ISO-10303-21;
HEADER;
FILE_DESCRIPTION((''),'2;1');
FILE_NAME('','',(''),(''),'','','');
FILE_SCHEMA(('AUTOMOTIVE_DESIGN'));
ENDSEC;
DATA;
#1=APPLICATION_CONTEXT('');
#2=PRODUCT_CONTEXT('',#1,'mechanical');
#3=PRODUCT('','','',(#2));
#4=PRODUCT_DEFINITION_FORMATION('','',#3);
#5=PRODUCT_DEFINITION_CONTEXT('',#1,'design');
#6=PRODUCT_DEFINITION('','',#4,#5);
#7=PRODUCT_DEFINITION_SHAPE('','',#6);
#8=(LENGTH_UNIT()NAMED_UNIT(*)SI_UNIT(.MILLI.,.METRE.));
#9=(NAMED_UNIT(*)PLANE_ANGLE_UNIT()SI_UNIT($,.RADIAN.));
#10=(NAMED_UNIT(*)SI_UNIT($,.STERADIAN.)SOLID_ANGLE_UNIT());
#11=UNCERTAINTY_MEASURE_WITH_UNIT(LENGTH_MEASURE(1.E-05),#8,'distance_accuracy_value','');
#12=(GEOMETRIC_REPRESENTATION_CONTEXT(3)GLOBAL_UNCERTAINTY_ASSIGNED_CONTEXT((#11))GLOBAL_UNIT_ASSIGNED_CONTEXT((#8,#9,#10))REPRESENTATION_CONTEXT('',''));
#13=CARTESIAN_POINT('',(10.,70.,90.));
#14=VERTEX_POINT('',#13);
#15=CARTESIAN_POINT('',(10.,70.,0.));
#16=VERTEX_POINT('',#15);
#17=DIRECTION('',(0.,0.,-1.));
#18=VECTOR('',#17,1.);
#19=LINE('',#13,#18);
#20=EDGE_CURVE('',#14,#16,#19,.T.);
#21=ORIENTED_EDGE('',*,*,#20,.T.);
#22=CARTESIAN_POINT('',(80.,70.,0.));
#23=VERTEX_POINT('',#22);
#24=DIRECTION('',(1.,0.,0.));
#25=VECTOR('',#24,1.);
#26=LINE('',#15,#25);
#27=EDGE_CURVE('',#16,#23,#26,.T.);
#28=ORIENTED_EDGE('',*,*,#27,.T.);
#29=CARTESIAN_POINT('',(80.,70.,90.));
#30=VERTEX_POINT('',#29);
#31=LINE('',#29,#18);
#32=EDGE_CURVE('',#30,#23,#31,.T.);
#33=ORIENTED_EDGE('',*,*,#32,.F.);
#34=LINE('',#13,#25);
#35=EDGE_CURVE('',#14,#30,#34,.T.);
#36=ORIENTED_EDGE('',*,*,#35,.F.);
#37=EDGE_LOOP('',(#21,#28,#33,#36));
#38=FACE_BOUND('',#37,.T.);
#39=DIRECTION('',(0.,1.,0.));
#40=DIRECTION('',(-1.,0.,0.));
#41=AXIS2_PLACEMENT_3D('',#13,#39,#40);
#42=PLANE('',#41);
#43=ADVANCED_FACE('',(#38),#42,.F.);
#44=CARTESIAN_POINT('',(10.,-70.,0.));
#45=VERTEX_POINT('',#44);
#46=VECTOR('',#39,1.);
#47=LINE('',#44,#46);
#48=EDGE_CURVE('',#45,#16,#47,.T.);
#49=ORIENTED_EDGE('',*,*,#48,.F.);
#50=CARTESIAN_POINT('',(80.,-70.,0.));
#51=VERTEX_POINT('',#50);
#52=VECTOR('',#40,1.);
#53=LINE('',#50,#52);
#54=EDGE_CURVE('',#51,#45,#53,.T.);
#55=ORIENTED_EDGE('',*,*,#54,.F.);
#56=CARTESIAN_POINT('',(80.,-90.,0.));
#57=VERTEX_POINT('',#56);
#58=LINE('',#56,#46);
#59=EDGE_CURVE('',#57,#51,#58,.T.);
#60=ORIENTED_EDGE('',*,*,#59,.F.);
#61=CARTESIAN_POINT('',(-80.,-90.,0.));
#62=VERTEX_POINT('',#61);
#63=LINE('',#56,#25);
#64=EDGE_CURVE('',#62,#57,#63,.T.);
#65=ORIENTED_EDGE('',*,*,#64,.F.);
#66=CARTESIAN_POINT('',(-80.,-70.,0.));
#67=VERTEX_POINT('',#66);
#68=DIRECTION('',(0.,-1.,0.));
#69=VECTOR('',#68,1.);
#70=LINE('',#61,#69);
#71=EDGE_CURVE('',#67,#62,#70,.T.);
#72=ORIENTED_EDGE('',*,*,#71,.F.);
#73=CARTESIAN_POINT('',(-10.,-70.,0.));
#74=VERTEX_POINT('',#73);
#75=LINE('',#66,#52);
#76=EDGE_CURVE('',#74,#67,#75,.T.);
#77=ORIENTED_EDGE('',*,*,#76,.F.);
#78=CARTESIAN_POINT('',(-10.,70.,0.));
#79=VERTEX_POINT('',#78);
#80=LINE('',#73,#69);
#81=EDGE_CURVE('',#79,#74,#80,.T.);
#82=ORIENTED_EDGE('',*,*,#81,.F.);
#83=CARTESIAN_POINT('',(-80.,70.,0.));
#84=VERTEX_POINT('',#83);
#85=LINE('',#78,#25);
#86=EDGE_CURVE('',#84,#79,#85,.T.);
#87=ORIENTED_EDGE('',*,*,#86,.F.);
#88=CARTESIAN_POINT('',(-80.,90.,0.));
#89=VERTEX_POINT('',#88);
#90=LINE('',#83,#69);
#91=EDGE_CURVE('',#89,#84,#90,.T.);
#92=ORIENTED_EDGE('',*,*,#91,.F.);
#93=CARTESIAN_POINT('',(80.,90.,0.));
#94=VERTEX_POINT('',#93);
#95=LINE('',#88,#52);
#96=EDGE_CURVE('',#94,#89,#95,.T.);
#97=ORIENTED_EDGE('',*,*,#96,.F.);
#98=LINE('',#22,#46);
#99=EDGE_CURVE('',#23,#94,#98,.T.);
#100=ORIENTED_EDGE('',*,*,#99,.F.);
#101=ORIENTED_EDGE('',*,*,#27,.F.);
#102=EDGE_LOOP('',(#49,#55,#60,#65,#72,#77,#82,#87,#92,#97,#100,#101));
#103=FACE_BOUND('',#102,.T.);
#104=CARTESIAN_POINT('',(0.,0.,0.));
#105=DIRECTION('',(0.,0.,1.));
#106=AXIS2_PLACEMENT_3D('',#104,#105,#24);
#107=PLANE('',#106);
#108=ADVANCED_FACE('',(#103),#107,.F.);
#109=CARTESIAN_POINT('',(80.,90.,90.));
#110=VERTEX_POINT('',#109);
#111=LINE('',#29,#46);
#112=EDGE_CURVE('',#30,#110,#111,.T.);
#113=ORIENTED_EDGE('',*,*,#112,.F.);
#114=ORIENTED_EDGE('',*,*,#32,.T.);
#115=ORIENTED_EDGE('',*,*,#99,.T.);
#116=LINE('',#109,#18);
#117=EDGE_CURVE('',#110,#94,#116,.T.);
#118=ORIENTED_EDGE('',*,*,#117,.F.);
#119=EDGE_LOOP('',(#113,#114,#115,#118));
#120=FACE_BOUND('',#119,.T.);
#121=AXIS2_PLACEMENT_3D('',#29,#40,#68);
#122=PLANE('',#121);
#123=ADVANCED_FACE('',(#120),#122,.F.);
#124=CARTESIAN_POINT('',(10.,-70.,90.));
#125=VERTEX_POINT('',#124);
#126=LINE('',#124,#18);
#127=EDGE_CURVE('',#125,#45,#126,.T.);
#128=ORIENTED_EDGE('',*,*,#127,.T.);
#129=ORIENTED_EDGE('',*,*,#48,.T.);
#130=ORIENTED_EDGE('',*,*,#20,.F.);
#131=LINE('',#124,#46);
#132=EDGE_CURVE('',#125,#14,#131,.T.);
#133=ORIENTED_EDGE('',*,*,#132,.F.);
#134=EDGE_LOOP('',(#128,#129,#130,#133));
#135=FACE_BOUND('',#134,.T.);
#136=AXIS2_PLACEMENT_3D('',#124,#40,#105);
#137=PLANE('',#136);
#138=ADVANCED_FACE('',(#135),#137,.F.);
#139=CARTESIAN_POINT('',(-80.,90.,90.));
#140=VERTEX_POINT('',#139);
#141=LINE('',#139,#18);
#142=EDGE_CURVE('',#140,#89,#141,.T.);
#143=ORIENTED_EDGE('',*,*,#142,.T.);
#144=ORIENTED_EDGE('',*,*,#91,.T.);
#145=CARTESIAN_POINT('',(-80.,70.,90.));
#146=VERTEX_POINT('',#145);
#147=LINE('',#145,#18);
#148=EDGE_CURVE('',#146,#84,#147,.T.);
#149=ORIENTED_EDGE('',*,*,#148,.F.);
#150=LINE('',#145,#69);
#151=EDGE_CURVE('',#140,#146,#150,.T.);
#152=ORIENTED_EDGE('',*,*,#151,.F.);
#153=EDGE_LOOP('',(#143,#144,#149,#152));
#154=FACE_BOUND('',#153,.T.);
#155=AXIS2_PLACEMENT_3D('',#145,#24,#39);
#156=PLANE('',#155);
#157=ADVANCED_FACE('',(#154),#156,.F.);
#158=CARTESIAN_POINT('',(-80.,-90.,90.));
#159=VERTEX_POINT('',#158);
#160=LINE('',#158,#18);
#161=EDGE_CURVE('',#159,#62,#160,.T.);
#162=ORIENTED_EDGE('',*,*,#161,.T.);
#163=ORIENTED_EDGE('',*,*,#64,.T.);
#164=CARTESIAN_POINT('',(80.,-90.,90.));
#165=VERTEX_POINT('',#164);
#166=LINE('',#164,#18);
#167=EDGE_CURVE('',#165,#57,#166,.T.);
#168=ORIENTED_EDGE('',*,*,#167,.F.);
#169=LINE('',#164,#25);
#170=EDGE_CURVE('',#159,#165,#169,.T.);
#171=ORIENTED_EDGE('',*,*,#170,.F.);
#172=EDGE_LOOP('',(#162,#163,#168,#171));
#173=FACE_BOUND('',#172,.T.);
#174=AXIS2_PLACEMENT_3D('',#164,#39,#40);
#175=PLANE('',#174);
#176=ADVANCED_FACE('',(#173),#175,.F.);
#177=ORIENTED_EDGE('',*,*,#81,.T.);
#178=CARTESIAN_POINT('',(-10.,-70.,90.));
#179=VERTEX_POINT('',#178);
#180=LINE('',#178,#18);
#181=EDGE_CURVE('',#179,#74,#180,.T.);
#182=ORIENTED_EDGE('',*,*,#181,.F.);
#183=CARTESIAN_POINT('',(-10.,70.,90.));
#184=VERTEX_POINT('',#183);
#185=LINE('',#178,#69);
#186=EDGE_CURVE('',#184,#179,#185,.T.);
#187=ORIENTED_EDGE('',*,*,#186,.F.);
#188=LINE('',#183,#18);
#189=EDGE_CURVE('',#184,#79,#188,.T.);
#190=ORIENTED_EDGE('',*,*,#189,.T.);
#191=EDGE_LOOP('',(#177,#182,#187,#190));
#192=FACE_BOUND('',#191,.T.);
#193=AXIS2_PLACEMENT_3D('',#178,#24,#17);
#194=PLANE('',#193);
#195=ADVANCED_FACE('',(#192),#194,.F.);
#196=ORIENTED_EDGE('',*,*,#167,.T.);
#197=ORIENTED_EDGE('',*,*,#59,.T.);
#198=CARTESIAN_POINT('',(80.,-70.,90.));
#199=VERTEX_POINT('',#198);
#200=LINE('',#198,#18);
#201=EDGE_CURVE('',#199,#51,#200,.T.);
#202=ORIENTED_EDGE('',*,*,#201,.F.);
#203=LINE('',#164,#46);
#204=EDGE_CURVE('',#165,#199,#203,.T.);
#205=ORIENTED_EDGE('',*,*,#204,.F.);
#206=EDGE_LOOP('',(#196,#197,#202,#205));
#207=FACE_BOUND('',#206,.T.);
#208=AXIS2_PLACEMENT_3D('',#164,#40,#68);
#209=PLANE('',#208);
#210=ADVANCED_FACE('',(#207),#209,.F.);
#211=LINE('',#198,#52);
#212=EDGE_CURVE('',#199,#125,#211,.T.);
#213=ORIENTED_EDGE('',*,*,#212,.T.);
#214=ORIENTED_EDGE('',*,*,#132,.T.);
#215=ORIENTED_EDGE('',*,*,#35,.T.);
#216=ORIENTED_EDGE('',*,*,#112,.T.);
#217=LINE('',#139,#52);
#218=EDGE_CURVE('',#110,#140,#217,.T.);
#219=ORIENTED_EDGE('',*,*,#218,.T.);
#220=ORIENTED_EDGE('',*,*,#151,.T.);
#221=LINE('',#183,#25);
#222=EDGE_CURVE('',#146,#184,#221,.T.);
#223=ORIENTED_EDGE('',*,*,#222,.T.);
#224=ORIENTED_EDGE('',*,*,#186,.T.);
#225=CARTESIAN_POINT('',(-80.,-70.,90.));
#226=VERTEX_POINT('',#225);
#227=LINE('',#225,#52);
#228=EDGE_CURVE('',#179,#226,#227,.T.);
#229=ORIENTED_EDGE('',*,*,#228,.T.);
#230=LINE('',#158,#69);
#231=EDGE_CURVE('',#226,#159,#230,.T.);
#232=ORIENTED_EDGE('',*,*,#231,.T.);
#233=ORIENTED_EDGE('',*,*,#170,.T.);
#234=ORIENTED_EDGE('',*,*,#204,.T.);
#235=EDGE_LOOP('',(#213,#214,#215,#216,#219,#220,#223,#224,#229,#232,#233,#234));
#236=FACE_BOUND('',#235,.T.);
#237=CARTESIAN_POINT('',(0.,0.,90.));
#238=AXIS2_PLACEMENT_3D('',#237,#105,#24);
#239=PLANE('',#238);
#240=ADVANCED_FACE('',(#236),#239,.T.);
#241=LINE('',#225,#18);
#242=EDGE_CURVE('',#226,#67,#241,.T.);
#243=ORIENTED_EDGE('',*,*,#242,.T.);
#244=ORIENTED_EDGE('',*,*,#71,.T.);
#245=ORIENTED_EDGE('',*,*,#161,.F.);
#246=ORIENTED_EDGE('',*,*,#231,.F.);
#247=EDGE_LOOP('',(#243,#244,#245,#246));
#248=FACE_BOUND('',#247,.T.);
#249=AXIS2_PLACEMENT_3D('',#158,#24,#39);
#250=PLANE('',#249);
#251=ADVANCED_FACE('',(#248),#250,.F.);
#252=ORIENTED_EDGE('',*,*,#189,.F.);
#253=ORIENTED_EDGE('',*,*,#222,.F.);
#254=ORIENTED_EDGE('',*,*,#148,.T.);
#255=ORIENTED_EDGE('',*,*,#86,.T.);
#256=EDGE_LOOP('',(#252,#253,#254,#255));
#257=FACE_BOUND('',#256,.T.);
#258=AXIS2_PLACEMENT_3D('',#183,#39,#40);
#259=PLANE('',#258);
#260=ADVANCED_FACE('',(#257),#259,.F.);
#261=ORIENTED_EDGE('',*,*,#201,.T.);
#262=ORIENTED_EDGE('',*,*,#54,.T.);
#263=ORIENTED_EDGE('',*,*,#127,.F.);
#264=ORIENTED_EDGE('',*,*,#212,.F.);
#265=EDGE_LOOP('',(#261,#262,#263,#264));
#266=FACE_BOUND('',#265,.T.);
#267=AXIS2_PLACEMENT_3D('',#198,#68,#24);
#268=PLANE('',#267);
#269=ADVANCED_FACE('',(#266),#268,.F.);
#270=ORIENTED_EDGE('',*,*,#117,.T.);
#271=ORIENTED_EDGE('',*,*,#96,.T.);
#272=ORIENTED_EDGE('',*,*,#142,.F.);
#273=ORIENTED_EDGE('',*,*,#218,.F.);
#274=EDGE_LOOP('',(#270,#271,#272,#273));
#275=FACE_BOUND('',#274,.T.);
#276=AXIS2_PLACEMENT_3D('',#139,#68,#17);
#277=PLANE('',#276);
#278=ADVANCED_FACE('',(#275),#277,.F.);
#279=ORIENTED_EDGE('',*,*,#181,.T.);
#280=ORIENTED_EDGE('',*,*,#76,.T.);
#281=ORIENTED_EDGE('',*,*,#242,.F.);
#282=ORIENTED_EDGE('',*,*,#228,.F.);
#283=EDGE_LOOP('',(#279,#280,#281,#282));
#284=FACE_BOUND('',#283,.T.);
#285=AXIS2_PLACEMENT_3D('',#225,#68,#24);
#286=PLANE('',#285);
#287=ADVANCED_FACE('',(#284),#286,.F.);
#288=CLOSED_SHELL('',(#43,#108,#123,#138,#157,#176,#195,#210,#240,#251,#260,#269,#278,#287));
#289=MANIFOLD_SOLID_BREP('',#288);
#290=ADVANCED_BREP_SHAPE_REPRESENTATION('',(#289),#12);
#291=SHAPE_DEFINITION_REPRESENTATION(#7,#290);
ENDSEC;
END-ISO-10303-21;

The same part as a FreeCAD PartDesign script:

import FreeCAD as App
import Part
import Sketcher

V = App.Vector


def add_polygon(sketch, points):
    """Adds a closed chain of lines whose ends are joined by coincident constraints."""
    first, n = sketch.GeometryCount, len(points)
    for a, b in zip(points, points[1:] + points[:1]):
        sketch.addGeometry(Part.LineSegment(App.Vector(*a, 0), App.Vector(*b, 0)), False)
    for i in range(n):
        sketch.addConstraint(Sketcher.Constraint("Coincident", first + i, 2, first + (i + 1) % n, 1))

doc = App.newDocument("Part")
body = doc.addObject("PartDesign::Body", "Body")

# Sketch on XY plane
sketch1 = body.newObject("Sketcher::SketchObject", "Sketch")
sketch1.AttachmentSupport = (doc.getObject("XY_Plane"), [""])
sketch1.MapMode = "FlatFace"
add_polygon(sketch1, [(-80, -90), (80, -90), (80, -70), (10, -70), (10, 70), (80, 70), (80, 90), (-80, 90), (-80, 70), (-10, 70), (-10, -70), (-80, -70)])  # lines 0-11
sketch1.addConstraint([
    Sketcher.Constraint("Horizontal", 0),
    Sketcher.Constraint("Vertical", 1),
    Sketcher.Constraint("Horizontal", 2),
    Sketcher.Constraint("Vertical", 3),
    Sketcher.Constraint("Horizontal", 4),
    Sketcher.Constraint("Vertical", 5),
    Sketcher.Constraint("Horizontal", 6),
    Sketcher.Constraint("Vertical", 7),
    Sketcher.Constraint("Horizontal", 8),
    Sketcher.Constraint("Vertical", 9),
    Sketcher.Constraint("Horizontal", 10),
    Sketcher.Constraint("Vertical", 11),
    Sketcher.Constraint("Symmetric", 0, 2, 6, 2, -1, 1),
    Sketcher.Constraint("Symmetric", 2, 2, 8, 2, -1, 1),
    Sketcher.Constraint("Symmetric", 4, 2, 10, 2, -1, 1),
    Sketcher.Constraint("Symmetric", 4, 2, 7, 2, -2),
    Sketcher.Constraint("DistanceX", 0, 1, 0, 2, 160.0),
    Sketcher.Constraint("DistanceX", 2, 2, 2, 1, 70.0),
    Sketcher.Constraint("DistanceY", 1, 1, 1, 2, 20.0),
    Sketcher.Constraint("DistanceY", 3, 1, 3, 2, 140.0),
])
pad1 = body.newObject("PartDesign::Pad", "Pad")
pad1.Profile = sketch1
pad1.Length = 90

doc.recompute()
